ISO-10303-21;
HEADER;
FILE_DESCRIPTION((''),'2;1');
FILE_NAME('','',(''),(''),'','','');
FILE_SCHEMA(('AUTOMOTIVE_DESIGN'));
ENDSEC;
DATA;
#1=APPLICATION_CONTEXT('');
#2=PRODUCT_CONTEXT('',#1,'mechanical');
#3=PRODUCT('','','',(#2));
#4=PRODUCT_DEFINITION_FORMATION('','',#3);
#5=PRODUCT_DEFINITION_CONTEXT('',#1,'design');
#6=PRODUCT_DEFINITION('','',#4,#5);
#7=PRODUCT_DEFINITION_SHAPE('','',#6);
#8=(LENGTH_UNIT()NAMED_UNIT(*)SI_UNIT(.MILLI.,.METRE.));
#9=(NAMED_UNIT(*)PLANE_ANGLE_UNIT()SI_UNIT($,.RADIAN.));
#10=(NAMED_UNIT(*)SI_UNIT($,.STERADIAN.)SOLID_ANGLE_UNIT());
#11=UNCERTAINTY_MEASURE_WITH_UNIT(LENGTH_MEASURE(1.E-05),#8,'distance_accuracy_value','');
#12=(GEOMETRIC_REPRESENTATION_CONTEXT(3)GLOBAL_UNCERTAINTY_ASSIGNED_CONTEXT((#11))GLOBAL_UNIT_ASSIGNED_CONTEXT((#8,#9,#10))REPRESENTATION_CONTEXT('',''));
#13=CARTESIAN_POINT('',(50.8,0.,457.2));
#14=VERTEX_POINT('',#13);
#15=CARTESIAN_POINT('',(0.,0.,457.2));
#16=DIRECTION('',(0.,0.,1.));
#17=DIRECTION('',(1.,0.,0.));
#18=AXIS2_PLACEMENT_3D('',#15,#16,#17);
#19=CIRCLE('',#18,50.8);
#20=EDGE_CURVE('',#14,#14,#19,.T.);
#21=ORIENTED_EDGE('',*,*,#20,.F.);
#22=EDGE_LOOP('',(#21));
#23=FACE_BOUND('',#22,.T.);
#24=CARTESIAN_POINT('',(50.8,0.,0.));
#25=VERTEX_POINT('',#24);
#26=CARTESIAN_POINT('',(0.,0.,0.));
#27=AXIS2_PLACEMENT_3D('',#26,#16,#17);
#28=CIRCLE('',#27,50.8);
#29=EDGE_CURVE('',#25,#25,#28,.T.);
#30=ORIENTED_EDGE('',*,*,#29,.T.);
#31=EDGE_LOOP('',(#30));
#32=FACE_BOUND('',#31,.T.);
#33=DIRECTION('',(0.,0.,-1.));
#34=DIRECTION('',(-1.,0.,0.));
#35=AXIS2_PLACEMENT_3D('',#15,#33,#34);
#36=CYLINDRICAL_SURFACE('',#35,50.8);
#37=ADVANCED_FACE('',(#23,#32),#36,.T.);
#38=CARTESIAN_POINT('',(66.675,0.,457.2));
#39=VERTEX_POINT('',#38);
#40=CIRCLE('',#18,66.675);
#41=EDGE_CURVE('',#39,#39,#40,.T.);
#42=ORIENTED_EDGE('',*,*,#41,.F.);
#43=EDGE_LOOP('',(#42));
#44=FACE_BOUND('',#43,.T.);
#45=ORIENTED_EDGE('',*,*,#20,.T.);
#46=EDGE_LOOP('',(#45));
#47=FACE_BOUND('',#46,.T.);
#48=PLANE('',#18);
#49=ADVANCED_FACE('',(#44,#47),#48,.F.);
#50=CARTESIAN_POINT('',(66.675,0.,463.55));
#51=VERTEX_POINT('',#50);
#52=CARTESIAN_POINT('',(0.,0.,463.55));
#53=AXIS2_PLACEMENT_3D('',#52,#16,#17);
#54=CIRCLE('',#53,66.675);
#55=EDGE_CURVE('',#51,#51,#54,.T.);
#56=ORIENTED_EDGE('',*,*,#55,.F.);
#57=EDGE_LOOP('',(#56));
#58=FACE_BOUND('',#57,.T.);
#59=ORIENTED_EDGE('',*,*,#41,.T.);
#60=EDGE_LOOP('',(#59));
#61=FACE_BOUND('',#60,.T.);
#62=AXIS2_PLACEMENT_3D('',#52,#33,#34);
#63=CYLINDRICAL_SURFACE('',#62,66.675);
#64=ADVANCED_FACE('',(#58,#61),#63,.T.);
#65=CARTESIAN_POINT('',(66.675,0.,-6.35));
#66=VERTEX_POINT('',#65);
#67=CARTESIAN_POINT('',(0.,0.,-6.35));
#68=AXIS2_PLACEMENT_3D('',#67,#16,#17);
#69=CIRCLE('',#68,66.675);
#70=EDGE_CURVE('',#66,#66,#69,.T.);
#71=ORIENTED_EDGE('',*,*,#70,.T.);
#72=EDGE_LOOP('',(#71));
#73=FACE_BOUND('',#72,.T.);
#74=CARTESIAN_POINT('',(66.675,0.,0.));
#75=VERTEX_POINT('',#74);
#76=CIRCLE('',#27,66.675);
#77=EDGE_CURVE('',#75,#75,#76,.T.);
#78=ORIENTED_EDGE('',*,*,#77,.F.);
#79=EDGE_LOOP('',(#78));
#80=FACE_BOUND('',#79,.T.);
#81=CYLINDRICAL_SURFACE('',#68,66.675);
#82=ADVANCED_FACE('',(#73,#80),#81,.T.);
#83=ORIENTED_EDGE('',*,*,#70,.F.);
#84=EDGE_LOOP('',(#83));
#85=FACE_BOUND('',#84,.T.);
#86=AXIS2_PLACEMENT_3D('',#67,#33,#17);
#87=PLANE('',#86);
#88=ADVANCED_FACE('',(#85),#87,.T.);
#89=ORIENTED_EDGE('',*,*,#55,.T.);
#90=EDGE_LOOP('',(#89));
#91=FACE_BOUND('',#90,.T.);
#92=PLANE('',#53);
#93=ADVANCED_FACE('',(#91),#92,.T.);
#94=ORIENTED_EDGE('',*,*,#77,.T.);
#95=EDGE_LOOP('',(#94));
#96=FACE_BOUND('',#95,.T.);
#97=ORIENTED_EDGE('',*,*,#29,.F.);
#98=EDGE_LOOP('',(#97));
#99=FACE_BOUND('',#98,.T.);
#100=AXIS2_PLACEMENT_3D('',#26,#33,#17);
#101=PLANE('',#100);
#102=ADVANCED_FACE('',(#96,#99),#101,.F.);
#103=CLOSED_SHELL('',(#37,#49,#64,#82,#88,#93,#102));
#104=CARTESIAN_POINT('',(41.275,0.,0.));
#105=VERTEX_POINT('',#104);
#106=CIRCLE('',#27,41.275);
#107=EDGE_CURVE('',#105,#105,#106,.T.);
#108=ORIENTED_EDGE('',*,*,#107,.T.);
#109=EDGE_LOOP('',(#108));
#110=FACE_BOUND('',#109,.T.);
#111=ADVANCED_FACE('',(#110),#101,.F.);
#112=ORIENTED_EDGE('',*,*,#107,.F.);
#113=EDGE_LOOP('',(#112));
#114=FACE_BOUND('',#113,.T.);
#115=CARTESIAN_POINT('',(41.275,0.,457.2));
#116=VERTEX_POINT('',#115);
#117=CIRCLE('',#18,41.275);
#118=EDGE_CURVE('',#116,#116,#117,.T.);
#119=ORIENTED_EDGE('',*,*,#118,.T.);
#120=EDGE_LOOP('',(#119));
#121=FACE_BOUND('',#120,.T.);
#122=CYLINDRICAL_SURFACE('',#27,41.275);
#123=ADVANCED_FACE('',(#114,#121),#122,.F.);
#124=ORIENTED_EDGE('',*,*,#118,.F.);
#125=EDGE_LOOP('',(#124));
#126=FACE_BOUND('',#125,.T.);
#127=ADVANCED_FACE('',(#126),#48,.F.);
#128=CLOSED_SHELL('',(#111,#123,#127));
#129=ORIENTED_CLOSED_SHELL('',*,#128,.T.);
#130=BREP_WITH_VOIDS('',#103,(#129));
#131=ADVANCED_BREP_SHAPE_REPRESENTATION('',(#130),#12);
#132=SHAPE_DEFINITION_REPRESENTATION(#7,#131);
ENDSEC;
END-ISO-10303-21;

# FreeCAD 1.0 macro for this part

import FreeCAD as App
import Part
import Sketcher

V = App.Vector
Q = App.Units.Quantity

doc = App.newDocument("Part")
params = doc.addObject("Spreadsheet::Sheet", "Params")
for row, (alias, value) in enumerate([
    ("sketch1_diameter", "4 in"),
    ("pad1_length", "18 in"),
    ("sketch2_diameter", "3.25 in"),
    ("pocket1_length", "18 in"),
    ("sketch3_diameter", "5.25 in"),
    ("pad2_length", "0.25 in"),
], start=1):
    params.set(f"A{row}", alias)
    params.set(f"B{row}", "=" + value)
    params.setAlias(f"B{row}", alias)

body = doc.addObject("PartDesign::Body", "Body")

# Sketch on XY plane
sketch1 = doc.addObject("Sketcher::SketchObject", "Sketch")
body.addObject(sketch1)
sketch1.AttachmentSupport = (doc.XY_Plane, [""])
sketch1.MapMode = "FlatFace"
sketch1.addGeometry(Part.Circle(V(0, 0, 0), V(0, 0, 1), 50.8), False)
sketch1.addConstraint([
    Sketcher.Constraint("Coincident", 0, 3, -1, 1),
    Sketcher.Constraint("Diameter", 0, Q("4 in")),
])
sketch1.setExpression("Constraints[1]", "Params.sketch1_diameter")
pad1 = doc.addObject("PartDesign::Pad", "Pad")
body.addObject(pad1)
pad1.Profile = sketch1
pad1.setExpression("Length", "Params.pad1_length")

# Sketch on XY plane
sketch2 = doc.addObject("Sketcher::SketchObject", "Sketch001")
body.addObject(sketch2)
sketch2.AttachmentSupport = (doc.XY_Plane, [""])
sketch2.MapMode = "FlatFace"
sketch2.AttachmentOffset = App.Placement(V(0, 0, 18 * 25.4), App.Rotation())
sketch2.addGeometry(Part.Circle(V(0, 0, 0), V(0, 0, 1), 41.275), False)
sketch2.addConstraint([
    Sketcher.Constraint("Coincident", 0, 3, -1, 1),
    Sketcher.Constraint("Diameter", 0, Q("3.25 in")),
])
sketch2.setExpression("Constraints[1]", "Params.sketch2_diameter")
pocket1 = doc.addObject("PartDesign::Pocket", "Pocket")
body.addObject(pocket1)
pocket1.Profile = sketch2
pocket1.setExpression("Length", "Params.pocket1_length")

# Sketch on XY plane
sketch3 = doc.addObject("Sketcher::SketchObject", "Sketch002")
body.addObject(sketch3)
sketch3.AttachmentSupport = (doc.XY_Plane, [""])
sketch3.MapMode = "FlatFace"
sketch3.AttachmentOffset = App.Placement(V(0, 0, 18 * 25.4), App.Rotation())
sketch3.addGeometry(Part.Circle(V(0, 0, 0), V(0, 0, 1), 66.675), False)
sketch3.addConstraint([
    Sketcher.Constraint("Coincident", 0, 3, -1, 1),
    Sketcher.Constraint("Diameter", 0, Q("5.25 in")),
])
sketch3.setExpression("Constraints[1]", "Params.sketch3_diameter")
pad2 = doc.addObject("PartDesign::Pad", "Pad001")
body.addObject(pad2)
pad2.Profile = sketch3
pad2.setExpression("Length", "Params.pad2_length")
doc.recompute()

datumplane = doc.addObject("PartDesign::Plane", "DatumPlane")
body.addObject(datumplane)
datumplane.AttachmentSupport = (doc.XY_Plane, [""])
datumplane.MapMode = "FlatFace"
datumplane.AttachmentOffset = App.Placement(V(0, 0, 9 * 25.4), App.Rotation())
mirrored = doc.addObject("PartDesign::Mirrored", "Mirrored")
body.addObject(mirrored)
mirrored.Originals = [pad2]
mirrored.MirrorPlane = (datumplane, [""])
body.Tip = mirrored

doc.recompute()
